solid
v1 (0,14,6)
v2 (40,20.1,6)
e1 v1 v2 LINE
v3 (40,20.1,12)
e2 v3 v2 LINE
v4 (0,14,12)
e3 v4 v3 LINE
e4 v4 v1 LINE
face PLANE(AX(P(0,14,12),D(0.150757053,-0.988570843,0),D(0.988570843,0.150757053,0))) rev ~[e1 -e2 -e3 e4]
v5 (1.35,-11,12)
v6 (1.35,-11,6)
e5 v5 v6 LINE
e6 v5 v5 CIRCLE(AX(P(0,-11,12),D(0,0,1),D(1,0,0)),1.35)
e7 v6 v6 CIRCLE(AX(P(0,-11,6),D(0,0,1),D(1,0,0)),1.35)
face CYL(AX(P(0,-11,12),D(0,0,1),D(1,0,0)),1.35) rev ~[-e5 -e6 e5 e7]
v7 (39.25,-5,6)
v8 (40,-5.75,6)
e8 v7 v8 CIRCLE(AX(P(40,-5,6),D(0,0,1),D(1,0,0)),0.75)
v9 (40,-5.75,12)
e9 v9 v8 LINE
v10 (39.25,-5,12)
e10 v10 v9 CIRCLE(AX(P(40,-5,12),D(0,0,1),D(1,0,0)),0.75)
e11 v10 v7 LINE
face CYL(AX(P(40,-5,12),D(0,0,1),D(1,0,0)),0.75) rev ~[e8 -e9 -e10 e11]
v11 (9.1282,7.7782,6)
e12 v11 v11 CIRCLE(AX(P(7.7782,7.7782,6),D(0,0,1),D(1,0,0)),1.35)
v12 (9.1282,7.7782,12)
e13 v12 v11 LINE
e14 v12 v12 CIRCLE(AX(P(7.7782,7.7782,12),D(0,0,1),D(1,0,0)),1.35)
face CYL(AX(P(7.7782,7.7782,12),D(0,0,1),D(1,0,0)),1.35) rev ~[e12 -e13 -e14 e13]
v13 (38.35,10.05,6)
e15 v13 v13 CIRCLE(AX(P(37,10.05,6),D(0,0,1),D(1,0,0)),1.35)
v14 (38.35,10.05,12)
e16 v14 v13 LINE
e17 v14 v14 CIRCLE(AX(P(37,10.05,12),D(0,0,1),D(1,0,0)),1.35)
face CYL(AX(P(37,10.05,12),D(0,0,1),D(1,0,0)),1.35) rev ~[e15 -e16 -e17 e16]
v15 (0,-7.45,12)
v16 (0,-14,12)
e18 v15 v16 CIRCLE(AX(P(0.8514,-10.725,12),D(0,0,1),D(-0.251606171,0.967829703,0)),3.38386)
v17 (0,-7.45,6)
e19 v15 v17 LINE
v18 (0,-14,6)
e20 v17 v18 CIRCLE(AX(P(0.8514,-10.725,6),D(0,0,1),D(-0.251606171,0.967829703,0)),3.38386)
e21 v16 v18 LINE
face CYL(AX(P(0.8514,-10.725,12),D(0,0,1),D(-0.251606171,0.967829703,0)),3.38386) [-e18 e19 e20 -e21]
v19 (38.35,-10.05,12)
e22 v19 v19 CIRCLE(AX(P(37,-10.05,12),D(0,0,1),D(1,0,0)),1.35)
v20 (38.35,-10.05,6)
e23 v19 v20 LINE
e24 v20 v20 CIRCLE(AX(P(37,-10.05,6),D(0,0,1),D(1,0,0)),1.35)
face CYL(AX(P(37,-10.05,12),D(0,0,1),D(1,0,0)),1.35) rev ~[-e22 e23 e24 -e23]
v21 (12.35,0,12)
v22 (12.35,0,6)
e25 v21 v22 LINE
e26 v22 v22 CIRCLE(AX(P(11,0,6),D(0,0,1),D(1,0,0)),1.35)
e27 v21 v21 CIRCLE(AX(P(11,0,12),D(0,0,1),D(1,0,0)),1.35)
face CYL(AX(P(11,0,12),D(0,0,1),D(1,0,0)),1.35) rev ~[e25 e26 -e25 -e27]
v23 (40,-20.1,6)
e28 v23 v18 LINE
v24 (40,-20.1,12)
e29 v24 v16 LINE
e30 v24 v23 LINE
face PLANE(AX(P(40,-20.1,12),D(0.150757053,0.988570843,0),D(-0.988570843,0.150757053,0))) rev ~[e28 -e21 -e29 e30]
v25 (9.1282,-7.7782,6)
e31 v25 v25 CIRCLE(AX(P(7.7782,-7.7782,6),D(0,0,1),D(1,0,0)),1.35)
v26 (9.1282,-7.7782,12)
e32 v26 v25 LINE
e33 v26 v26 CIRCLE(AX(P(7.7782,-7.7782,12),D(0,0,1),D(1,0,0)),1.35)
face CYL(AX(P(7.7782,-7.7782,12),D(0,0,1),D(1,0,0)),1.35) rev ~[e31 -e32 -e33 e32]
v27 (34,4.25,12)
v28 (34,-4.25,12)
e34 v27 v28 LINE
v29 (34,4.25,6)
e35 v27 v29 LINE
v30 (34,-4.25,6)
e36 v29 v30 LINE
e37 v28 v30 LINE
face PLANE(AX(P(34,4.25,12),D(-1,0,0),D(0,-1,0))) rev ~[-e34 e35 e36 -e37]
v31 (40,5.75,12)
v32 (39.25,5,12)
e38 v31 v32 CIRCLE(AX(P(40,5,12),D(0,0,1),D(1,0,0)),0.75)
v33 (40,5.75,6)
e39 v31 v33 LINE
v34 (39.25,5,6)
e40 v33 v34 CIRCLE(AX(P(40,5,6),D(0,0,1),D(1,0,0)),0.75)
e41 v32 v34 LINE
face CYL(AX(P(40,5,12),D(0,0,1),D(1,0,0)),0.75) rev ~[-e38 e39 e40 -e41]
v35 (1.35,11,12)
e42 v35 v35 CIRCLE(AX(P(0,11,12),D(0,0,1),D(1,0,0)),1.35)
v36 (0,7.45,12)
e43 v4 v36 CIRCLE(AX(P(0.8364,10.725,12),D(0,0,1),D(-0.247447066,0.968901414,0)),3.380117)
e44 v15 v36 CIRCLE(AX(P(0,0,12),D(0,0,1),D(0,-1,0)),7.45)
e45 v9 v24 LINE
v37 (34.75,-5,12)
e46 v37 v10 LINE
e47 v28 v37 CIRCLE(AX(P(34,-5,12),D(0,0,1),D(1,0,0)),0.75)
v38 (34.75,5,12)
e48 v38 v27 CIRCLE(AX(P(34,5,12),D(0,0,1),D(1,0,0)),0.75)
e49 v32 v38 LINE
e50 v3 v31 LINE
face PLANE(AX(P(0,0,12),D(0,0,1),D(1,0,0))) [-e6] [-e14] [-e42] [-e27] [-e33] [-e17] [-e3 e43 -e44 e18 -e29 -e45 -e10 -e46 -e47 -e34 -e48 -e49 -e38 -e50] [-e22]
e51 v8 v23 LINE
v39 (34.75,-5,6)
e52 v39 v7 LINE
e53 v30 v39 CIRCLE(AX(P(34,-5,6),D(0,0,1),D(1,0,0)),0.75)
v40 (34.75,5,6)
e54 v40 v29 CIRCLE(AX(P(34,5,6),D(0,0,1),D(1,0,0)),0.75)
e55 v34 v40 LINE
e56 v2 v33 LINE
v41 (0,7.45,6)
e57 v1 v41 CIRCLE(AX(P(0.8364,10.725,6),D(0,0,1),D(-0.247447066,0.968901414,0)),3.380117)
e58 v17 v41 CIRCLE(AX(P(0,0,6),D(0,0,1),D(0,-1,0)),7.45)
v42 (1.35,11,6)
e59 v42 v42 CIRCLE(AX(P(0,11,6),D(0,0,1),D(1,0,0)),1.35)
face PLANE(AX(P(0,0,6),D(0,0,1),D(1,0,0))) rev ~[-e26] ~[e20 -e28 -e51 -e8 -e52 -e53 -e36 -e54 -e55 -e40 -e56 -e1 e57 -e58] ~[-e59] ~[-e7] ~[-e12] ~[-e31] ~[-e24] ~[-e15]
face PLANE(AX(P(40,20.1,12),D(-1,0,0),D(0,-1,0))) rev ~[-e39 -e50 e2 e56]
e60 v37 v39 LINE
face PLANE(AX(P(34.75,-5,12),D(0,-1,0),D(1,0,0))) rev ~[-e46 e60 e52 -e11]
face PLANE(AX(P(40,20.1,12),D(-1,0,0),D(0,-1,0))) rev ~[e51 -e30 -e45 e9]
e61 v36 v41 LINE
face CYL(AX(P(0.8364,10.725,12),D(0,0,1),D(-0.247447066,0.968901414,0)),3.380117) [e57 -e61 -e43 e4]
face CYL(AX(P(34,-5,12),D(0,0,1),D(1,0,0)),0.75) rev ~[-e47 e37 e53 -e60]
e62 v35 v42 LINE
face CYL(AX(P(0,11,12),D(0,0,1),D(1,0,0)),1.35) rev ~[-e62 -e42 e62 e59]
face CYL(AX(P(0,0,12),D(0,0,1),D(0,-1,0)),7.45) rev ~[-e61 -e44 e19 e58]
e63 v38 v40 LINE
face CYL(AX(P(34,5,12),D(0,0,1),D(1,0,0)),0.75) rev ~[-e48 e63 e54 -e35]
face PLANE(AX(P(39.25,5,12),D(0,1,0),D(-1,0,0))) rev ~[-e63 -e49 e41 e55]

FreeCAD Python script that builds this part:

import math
import FreeCAD as App
import Part
import Sketcher

doc = App.newDocument("Part")
body = doc.addObject("PartDesign::Body", "Body")

# Sketch on XY plane
sketch1 = body.newObject("Sketcher::SketchObject", "Sketch")
sketch1.AttachmentSupport = (doc.getObject("XY_Plane"), [""])
sketch1.MapMode = "FlatFace"
sketch1.AttachmentOffset = App.Placement(App.Vector(0, 0, 12), App.Rotation())
sketch1.addGeometry([
    Part.ArcOfCircle(Part.Circle(App.Vector(0, 0, 0), App.Vector(0, 0, 1), 7.5), math.radians(-90), math.radians(90)),  # 0
    Part.ArcOfCircle(Part.Circle(App.Vector(0.9, -10.7, 0), App.Vector(0, 0, 1), 3.4), math.radians(105), math.radians(255)),  # 1
    Part.LineSegment(App.Vector(0, -14, 0), App.Vector(40, -20.1, 0)),  # 2
    Part.LineSegment(App.Vector(40, -20.1, 0), App.Vector(40, 20.1, 0)),  # 3
    Part.LineSegment(App.Vector(40, 20.1, 0), App.Vector(0, 14, 0)),  # 4
    Part.ArcOfCircle(Part.Circle(App.Vector(0.8, 10.7, 0), App.Vector(0, 0, 1), 3.4), math.radians(104), math.radians(256)),  # 5
    Part.Circle(App.Vector(0, -11, 0), App.Vector(0, 0, 1), 1.4),  # 6
    Part.Circle(App.Vector(7.8, -7.8, 0), App.Vector(0, 0, 1), 1.4),  # 7
    Part.Circle(App.Vector(7.8, 7.8, 0), App.Vector(0, 0, 1), 1.4),  # 8
    Part.Circle(App.Vector(11, 0, 0), App.Vector(0, 0, 1), 1.4),  # 9
    Part.Circle(App.Vector(0, 11, 0), App.Vector(0, 0, 1), 1.4),  # 10
], False)
sketch1.addConstraint([
    Sketcher.Constraint("Coincident", 0, 1, 1, 1),
    Sketcher.Constraint("Coincident", 1, 2, 2, 1),
    Sketcher.Constraint("Coincident", 2, 2, 3, 1),
    Sketcher.Constraint("Coincident", 3, 2, 4, 1),
    Sketcher.Constraint("Coincident", 4, 2, 5, 1),
    Sketcher.Constraint("Coincident", 5, 2, 0, 2),
    Sketcher.Constraint("Vertical", 3),
    Sketcher.Constraint("Coincident", 0, 3, -1, 1),
    Sketcher.Constraint("Equal", 6, 7),
    Sketcher.Constraint("Equal", 7, 8),
    Sketcher.Constraint("Equal", 8, 9),
    Sketcher.Constraint("Equal", 9, 10),
    Sketcher.Constraint("Symmetric", 6, 3, 10, 3, -1, 1),
    Sketcher.Constraint("Symmetric", 1, 2, 4, 2, -1, 1),
    Sketcher.Constraint("Symmetric", 7, 3, 8, 3, -1),
    Sketcher.Constraint("PointOnObject", 6, 3, -2),
    Sketcher.Constraint("PointOnObject", 9, 3, -1),
    Sketcher.Constraint("PointOnObject", 0, 1, -2),
    Sketcher.Constraint("PointOnObject", 1, 2, -2),
    Sketcher.Constraint("PointOnObject", 5, 2, -2),
    Sketcher.Constraint("Equal", 2, 4),
    Sketcher.Constraint("Diameter", 6, 2.7),
    Sketcher.Constraint("Radius", 0, 7.45),
    Sketcher.Constraint("Radius", 5, 3.38),
    Sketcher.Constraint("DistanceY", 3, 1, 3, 2, 40.2),
    Sketcher.Constraint("DistanceY", 6, 3, -1, 1, 11.0),
    Sketcher.Constraint("DistanceX", -1, 1, 9, 3, 11.0),
    Sketcher.Constraint("DistanceY", 1, 2, -1, 1, 14.0),
    Sketcher.Constraint("DistanceX", -1, 1, 2, 2, 40.0),
    Sketcher.Constraint("Radius", 1, 3.3839),
    Sketcher.Constraint("DistanceX", -1, 1, 7, 3, 7.7782),
    Sketcher.Constraint("DistanceY", 7, 3, -1, 1, 7.7782),
])
pad1 = body.newObject("PartDesign::Pad", "Pad")
pad1.Profile = sketch1
pad1.Length = 6
pad1.Reversed = True

# Sketch on XY plane
sketch2 = body.newObject("Sketcher::SketchObject", "Sketch001")
sketch2.AttachmentSupport = (doc.getObject("XY_Plane"), [""])
sketch2.MapMode = "FlatFace"
sketch2.AttachmentOffset = App.Placement(App.Vector(0, 0, 12), App.Rotation())
sketch2.addGeometry([
    Part.Circle(App.Vector(37, 10.1, 0), App.Vector(0, 0, 1), 1.4),
    Part.Circle(App.Vector(37, -10.1, 0), App.Vector(0, 0, 1), 1.4),
], False)
sketch2.addConstraint([
    Sketcher.Constraint("Equal", 0, 1),
    Sketcher.Constraint("Symmetric", 0, 3, 1, 3, -1),
    Sketcher.Constraint("Diameter", 0, 2.7),
    Sketcher.Constraint("DistanceY", 1, 3, 0, 3, 20.1),
    Sketcher.Constraint("DistanceX", -1, 1, 0, 3, 37.0),
])
pocket1 = body.newObject("PartDesign::Pocket", "Pocket")
pocket1.Profile = sketch2
pocket1.Length = 6

# Sketch on XY plane
sketch3 = body.newObject("Sketcher::SketchObject", "Sketch002")
sketch3.AttachmentSupport = (doc.getObject("XY_Plane"), [""])
sketch3.MapMode = "FlatFace"
sketch3.AttachmentOffset = App.Placement(App.Vector(0, 0, 12), App.Rotation())
sketch3.addGeometry([
    Part.ArcOfCircle(Part.Circle(App.Vector(40, -5, 0), App.Vector(0, 0, 1), 0.8), math.radians(180), math.radians(270)),  # 0
    Part.LineSegment(App.Vector(40, -5.8, 0), App.Vector(40, 5.8, 0)),  # 1
    Part.ArcOfCircle(Part.Circle(App.Vector(40, 5, 0), App.Vector(0, 0, 1), 0.8), math.radians(90), math.radians(180)),  # 2
    Part.LineSegment(App.Vector(39.2, 5, 0), App.Vector(34.8, 5, 0)),  # 3
    Part.ArcOfCircle(Part.Circle(App.Vector(34, 5, 0), App.Vector(0, 0, 1), 0.8), math.radians(0), math.radians(270)),  # 4
    Part.LineSegment(App.Vector(34, 4.2, 0), App.Vector(34, -4.2, 0)),  # 5
    Part.ArcOfCircle(Part.Circle(App.Vector(34, -5, 0), App.Vector(0, 0, 1), 0.8), math.radians(90), math.radians(360)),  # 6
    Part.LineSegment(App.Vector(34.8, -5, 0), App.Vector(39.2, -5, 0)),  # 7
], False)
sketch3.addConstraint([
    Sketcher.Constraint("Coincident", 0, 2, 1, 1),
    Sketcher.Constraint("Coincident", 1, 2, 2, 1),
    Sketcher.Constraint("Coincident", 2, 2, 3, 1),
    Sketcher.Constraint("Coincident", 3, 2, 4, 1),
    Sketcher.Constraint("Coincident", 4, 2, 5, 1),
    Sketcher.Constraint("Coincident", 5, 2, 6, 1),
    Sketcher.Constraint("Coincident", 6, 2, 7, 1),
    Sketcher.Constraint("Coincident", 7, 2, 0, 1),
    Sketcher.Constraint("Vertical", 1),
    Sketcher.Constraint("Horizontal", 3),
    Sketcher.Constraint("Vertical", 5),
    Sketcher.Constraint("Horizontal", 7),
    Sketcher.Constraint("Equal", 0, 2),
    Sketcher.Constraint("Equal", 2, 4),
    Sketcher.Constraint("Equal", 4, 6),
    Sketcher.Constraint("Symmetric", 0, 3, 2, 3, -1),
    Sketcher.Constraint("Symmetric", 4, 3, 6, 3, -1),
    Sketcher.Constraint("Horizontal", 2, 3, 4, 3),
    Sketcher.Constraint("Horizontal", 4, 3, 2, 2),
    Sketcher.Constraint("Horizontal", 0, 3, 6, 2),
    Sketcher.Constraint("Vertical", 2, 3, 0, 2),
    Sketcher.Constraint("Vertical", 6, 3, 4, 2),
    Sketcher.Constraint("Radius", 0, 0.75),
    Sketcher.Constraint("DistanceY", 0, 3, 2, 3, 10.0),
    Sketcher.Constraint("DistanceX", 3, 2, 3, 1, 4.5),
    Sketcher.Constraint("DistanceX", -1, 1, 0, 3, 40.0),
])
pocket2 = body.newObject("PartDesign::Pocket", "Pocket001")
pocket2.Profile = sketch3
pocket2.Length = 10

doc.recompute()
